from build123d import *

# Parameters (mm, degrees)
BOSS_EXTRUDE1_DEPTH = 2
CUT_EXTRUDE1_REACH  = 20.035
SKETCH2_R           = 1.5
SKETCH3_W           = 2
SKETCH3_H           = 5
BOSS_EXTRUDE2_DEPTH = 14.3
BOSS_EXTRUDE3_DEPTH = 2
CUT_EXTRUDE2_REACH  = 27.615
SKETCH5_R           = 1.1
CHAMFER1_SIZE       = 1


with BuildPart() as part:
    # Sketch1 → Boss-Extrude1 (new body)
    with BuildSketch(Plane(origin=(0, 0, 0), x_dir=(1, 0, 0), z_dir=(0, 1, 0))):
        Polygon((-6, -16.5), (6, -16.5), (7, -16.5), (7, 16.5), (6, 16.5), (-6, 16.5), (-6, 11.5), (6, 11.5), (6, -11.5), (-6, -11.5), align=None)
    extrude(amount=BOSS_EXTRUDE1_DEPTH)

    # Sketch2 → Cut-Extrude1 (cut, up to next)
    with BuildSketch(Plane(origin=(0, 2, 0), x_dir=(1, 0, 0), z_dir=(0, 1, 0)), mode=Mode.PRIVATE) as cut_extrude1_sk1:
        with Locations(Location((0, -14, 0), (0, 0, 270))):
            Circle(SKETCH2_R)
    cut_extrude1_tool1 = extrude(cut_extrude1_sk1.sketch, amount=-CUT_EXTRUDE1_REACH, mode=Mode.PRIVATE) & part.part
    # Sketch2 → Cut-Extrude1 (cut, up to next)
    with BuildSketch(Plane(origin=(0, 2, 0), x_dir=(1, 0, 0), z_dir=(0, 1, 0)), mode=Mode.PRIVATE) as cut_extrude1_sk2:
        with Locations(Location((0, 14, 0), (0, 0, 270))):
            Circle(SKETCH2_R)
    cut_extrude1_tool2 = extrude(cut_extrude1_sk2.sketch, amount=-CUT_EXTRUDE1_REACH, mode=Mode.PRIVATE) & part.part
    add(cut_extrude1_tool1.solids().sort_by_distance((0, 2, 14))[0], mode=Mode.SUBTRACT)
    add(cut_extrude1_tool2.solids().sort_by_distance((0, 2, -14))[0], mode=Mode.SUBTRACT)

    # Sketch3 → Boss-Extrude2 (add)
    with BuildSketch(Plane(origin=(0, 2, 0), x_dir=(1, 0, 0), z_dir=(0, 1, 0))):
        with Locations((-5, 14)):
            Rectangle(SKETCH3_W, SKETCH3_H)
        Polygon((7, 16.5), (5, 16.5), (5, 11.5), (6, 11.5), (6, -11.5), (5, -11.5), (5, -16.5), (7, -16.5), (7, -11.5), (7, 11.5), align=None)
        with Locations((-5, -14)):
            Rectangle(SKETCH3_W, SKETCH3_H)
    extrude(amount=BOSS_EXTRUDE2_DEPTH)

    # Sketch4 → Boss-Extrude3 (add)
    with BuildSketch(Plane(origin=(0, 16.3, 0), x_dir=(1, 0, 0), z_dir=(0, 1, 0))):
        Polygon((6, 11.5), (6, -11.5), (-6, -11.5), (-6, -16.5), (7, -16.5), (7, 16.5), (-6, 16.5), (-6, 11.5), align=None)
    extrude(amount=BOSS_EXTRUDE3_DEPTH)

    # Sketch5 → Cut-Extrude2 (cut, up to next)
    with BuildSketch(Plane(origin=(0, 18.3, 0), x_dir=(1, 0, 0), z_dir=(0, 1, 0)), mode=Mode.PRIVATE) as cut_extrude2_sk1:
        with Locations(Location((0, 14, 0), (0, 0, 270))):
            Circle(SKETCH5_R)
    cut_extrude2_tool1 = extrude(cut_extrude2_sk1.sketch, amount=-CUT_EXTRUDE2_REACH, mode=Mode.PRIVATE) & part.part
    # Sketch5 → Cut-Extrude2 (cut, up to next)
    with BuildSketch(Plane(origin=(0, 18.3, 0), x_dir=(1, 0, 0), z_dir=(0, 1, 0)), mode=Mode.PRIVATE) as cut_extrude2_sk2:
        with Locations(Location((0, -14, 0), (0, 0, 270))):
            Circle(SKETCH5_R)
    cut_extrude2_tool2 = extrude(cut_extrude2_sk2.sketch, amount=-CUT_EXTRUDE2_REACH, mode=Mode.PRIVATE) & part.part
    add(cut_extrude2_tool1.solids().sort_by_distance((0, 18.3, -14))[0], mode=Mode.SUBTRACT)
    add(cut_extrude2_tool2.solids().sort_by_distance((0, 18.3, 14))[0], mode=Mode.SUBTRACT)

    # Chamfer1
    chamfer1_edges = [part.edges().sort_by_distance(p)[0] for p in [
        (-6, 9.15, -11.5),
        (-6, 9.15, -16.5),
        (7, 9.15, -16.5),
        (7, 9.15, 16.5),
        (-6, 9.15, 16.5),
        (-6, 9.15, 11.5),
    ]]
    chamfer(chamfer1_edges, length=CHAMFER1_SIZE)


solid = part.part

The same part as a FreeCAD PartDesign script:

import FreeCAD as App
import Part
import Sketcher

V = App.Vector
Q = App.Units.Quantity


def edges_at(feature, points):
    """Names of the edges that pass closest to the given points."""
    edges = feature.Shape.Edges
    near = lambda p: min(range(len(edges)), key=lambda i: edges[i].distToShape(Part.Vertex(*p))[0])
    return sorted({f"Edge{near(p) + 1}" for p in points})


def add_polygon(sketch, points):
    """Adds a closed chain of lines whose ends are joined by coincident constraints."""
    first, n = sketch.GeometryCount, len(points)
    for a, b in zip(points, points[1:] + points[:1]):
        sketch.addGeometry(Part.LineSegment(App.Vector(*a, 0), App.Vector(*b, 0)), False)
    for i in range(n):
        sketch.addConstraint(Sketcher.Constraint("Coincident", first + i, 2, first + (i + 1) % n, 1))

doc = App.newDocument("Part")
body = doc.addObject("PartDesign::Body", "Body")

# Sketch on XZ plane
sketch1 = body.newObject("Sketcher::SketchObject", "Sketch")
sketch1.AttachmentSupport = (doc.getObject("XZ_Plane"), [""])
sketch1.MapMode = "FlatFace"
add_polygon(sketch1, [(-6, 16), (7, 16), (7, -16), (-6, -16), (-6, -12), (6, -12), (6, 12), (-6, 12)])  # lines 0-7
sketch1.addConstraint([
    Sketcher.Constraint("Horizontal", 0),
    Sketcher.Constraint("Vertical", 1),
    Sketcher.Constraint("Horizontal", 2),
    Sketcher.Constraint("Vertical", 3),
    Sketcher.Constraint("Horizontal", 4),
    Sketcher.Constraint("Vertical", 5),
    Sketcher.Constraint("Horizontal", 6),
    Sketcher.Constraint("Vertical", 7),
    Sketcher.Constraint("Symmetric", 3, 2, 5, 2, -1, 1),
    Sketcher.Constraint("Symmetric", 2, 2, 7, 2, -1),
    Sketcher.Constraint("DistanceX", 0, 1, 0, 2, Q("13 mm")),
    Sketcher.Constraint("DistanceX", 4, 1, 4, 2, Q("12 mm")),
    Sketcher.Constraint("DistanceY", 1, 2, 1, 1, Q("33 mm")),
    Sketcher.Constraint("DistanceY", 3, 1, 3, 2, Q("5 mm")),
])
pad1 = body.newObject("PartDesign::Pad", "Pad")
pad1.Profile = sketch1
pad1.Length = 2
pad1.Reversed = True

# Sketch on XZ plane
sketch2 = body.newObject("Sketcher::SketchObject", "Sketch001")
sketch2.AttachmentSupport = (doc.getObject("XZ_Plane"), [""])
sketch2.MapMode = "FlatFace"
sketch2.AttachmentOffset = App.Placement(V(0, 0, -2), App.Rotation())
sketch2.addGeometry(Part.Circle(V(0, 14, 0), V(0, 0, 1), 1.5), False)
sketch2.addConstraint([
    Sketcher.Constraint("PointOnObject", 0, 3, -2),
    Sketcher.Constraint("Diameter", 0, Q("3 mm")),
    Sketcher.Constraint("DistanceY", -1, 1, 0, 3, Q("14 mm")),
])
pocket1 = body.newObject("PartDesign::Pocket", "Pocket")
pocket1.Profile = sketch2
pocket1.Type = "UpToFirst"
pocket1.Reversed = True

# Sketch on XZ plane
sketch3 = body.newObject("Sketcher::SketchObject", "Sketch002")
sketch3.AttachmentSupport = (doc.getObject("XZ_Plane"), [""])
sketch3.MapMode = "FlatFace"
sketch3.AttachmentOffset = App.Placement(V(0, 0, -2), App.Rotation())
sketch3.addGeometry(Part.Circle(V(0, -14, 0), V(0, 0, 1), 1.5), False)
sketch3.addConstraint([
    Sketcher.Constraint("PointOnObject", 0, 3, -2),
    Sketcher.Constraint("Diameter", 0, Q("3 mm")),
    Sketcher.Constraint("DistanceY", 0, 3, -1, 1, Q("14 mm")),
])
pocket2 = body.newObject("PartDesign::Pocket", "Pocket001")
pocket2.Profile = sketch3
pocket2.Type = "UpToFirst"
pocket2.Reversed = True

# Sketch on XZ plane
sketch4 = body.newObject("Sketcher::SketchObject", "Sketch003")
sketch4.AttachmentSupport = (doc.getObject("XZ_Plane"), [""])
sketch4.MapMode = "FlatFace"
sketch4.AttachmentOffset = App.Placement(V(0, 0, -2), App.Rotation())
add_polygon(sketch4, [(-6, -16.5), (-6, -11.5), (-4, -11.5), (-4, -16.5)])  # lines 0-3
add_polygon(sketch4, [(7, -16.5), (5, -16.5), (5, -11.5), (6, -11.5), (6, 11.5), (5, 11.5), (5, 16.5), (7, 16.5)])  # lines 4-11
add_polygon(sketch4, [(-6, 11.5), (-6, 16.5), (-4, 16.5), (-4, 11.5)])  # lines 12-15
sketch4.addConstraint([
    Sketcher.Constraint("Vertical", 0),
    Sketcher.Constraint("Horizontal", 1),
    Sketcher.Constraint("Vertical", 2),
    Sketcher.Constraint("Horizontal", 3),
    Sketcher.Constraint("Horizontal", 4),
    Sketcher.Constraint("Vertical", 5),
    Sketcher.Constraint("Horizontal", 6),
    Sketcher.Constraint("Vertical", 7),
    Sketcher.Constraint("Horizontal", 8),
    Sketcher.Constraint("Vertical", 9),
    Sketcher.Constraint("Horizontal", 10),
    Sketcher.Constraint("Vertical", 11),
    Sketcher.Constraint("Vertical", 12),
    Sketcher.Constraint("Horizontal", 13),
    Sketcher.Constraint("Vertical", 14),
    Sketcher.Constraint("Horizontal", 15),
    Sketcher.Constraint("Symmetric", 0, 2, 7, 2, -1, 1),
    Sketcher.Constraint("Symmetric", 6, 2, 15, 2, -1, 1),
    Sketcher.Constraint("Symmetric", 5, 2, 8, 2, -1),
    Sketcher.Constraint("Symmetric", 2, 2, 13, 2, -1),
    Sketcher.Constraint("Horizontal", 3, 2, 4, 2),
    Sketcher.Constraint("Horizontal", 10, 2, 12, 2),
    Sketcher.Constraint("Equal", 3, 4),
    Sketcher.Constraint("DistanceX", 1, 1, 1, 2, Q("2 mm")),
    Sketcher.Constraint("DistanceX", 6, 1, 6, 2, Q("1 mm")),
    Sketcher.Constraint("DistanceY", 0, 1, 0, 2, Q("5 mm")),
    Sketcher.Constraint("DistanceY", 7, 1, 7, 2, Q("23 mm")),
    Sketcher.Constraint("DistanceX", 0, 2, -1, 1, Q("6 mm")),
])
pad2 = body.newObject("PartDesign::Pad", "Pad001")
pad2.Profile = sketch4
pad2.Length = 14.3
pad2.Reversed = True

# Sketch on XZ plane
sketch5 = body.newObject("Sketcher::SketchObject", "Sketch004")
sketch5.AttachmentSupport = (doc.getObject("XZ_Plane"), [""])
sketch5.MapMode = "FlatFace"
sketch5.AttachmentOffset = App.Placement(V(0, 0, -16.3), App.Rotation())
add_polygon(sketch5, [(6, -12), (6, 12), (-6, 12), (-6, 16), (7, 16), (7, -16), (-6, -16), (-6, -12)])  # lines 0-7
sketch5.addConstraint([
    Sketcher.Constraint("Vertical", 0),
    Sketcher.Constraint("Horizontal", 1),
    Sketcher.Constraint("Vertical", 2),
    Sketcher.Constraint("Horizontal", 3),
    Sketcher.Constraint("Vertical", 4),
    Sketcher.Constraint("Horizontal", 5),
    Sketcher.Constraint("Vertical", 6),
    Sketcher.Constraint("Horizontal", 7),
    Sketcher.Constraint("Symmetric", 0, 2, 6, 2, -1, 1),
    Sketcher.Constraint("Symmetric", 2, 2, 5, 2, -1),
    Sketcher.Constraint("DistanceX", 1, 2, 1, 1, Q("12 mm")),
    Sketcher.Constraint("DistanceX", 3, 1, 3, 2, Q("13 mm")),
    Sketcher.Constraint("DistanceY", 0, 1, 0, 2, Q("23 mm")),
    Sketcher.Constraint("DistanceY", 2, 1, 2, 2, Q("5 mm")),
])
pad3 = body.newObject("PartDesign::Pad", "Pad002")
pad3.Profile = sketch5
pad3.Length = 2
pad3.Reversed = True

# Sketch on XZ plane
sketch6 = body.newObject("Sketcher::SketchObject", "Sketch005")
sketch6.AttachmentSupport = (doc.getObject("XZ_Plane"), [""])
sketch6.MapMode = "FlatFace"
sketch6.AttachmentOffset = App.Placement(V(0, 0, -18.3), App.Rotation())
sketch6.addGeometry(Part.Circle(V(0, -14, 0), V(0, 0, 1), 1.1), False)
sketch6.addConstraint([
    Sketcher.Constraint("PointOnObject", 0, 3, -2),
    Sketcher.Constraint("Diameter", 0, Q("2.2 mm")),
    Sketcher.Constraint("DistanceY", 0, 3, -1, 1, Q("14 mm")),
])
pocket3 = body.newObject("PartDesign::Pocket", "Pocket002")
pocket3.Profile = sketch6
pocket3.Type = "UpToFirst"
pocket3.Reversed = True

# Sketch on XZ plane
sketch7 = body.newObject("Sketcher::SketchObject", "Sketch006")
sketch7.AttachmentSupport = (doc.getObject("XZ_Plane"), [""])
sketch7.MapMode = "FlatFace"
sketch7.AttachmentOffset = App.Placement(V(0, 0, -18.3), App.Rotation())
sketch7.addGeometry(Part.Circle(V(0, 14, 0), V(0, 0, 1), 1.1), False)
sketch7.addConstraint([
    Sketcher.Constraint("PointOnObject", 0, 3, -2),
    Sketcher.Constraint("Diameter", 0, Q("2.2 mm")),
    Sketcher.Constraint("DistanceY", -1, 1, 0, 3, Q("14 mm")),
])
pocket4 = body.newObject("PartDesign::Pocket", "Pocket003")
pocket4.Profile = sketch7
pocket4.Type = "UpToFirst"
pocket4.Reversed = True
doc.recompute()

chamfer = body.newObject("PartDesign::Chamfer", "Chamfer")
chamfer.Base = (pocket4, edges_at(pocket4, [
    (-6, 9.15, -11.5),
    (-6, 9.15, -16.5),
    (7, 9.15, -16.5),
    (7, 9.15, 16.5),
    (-6, 9.15, 16.5),
    (-6, 9.15, 11.5),
]))
chamfer.Size = 1

doc.recompute()
